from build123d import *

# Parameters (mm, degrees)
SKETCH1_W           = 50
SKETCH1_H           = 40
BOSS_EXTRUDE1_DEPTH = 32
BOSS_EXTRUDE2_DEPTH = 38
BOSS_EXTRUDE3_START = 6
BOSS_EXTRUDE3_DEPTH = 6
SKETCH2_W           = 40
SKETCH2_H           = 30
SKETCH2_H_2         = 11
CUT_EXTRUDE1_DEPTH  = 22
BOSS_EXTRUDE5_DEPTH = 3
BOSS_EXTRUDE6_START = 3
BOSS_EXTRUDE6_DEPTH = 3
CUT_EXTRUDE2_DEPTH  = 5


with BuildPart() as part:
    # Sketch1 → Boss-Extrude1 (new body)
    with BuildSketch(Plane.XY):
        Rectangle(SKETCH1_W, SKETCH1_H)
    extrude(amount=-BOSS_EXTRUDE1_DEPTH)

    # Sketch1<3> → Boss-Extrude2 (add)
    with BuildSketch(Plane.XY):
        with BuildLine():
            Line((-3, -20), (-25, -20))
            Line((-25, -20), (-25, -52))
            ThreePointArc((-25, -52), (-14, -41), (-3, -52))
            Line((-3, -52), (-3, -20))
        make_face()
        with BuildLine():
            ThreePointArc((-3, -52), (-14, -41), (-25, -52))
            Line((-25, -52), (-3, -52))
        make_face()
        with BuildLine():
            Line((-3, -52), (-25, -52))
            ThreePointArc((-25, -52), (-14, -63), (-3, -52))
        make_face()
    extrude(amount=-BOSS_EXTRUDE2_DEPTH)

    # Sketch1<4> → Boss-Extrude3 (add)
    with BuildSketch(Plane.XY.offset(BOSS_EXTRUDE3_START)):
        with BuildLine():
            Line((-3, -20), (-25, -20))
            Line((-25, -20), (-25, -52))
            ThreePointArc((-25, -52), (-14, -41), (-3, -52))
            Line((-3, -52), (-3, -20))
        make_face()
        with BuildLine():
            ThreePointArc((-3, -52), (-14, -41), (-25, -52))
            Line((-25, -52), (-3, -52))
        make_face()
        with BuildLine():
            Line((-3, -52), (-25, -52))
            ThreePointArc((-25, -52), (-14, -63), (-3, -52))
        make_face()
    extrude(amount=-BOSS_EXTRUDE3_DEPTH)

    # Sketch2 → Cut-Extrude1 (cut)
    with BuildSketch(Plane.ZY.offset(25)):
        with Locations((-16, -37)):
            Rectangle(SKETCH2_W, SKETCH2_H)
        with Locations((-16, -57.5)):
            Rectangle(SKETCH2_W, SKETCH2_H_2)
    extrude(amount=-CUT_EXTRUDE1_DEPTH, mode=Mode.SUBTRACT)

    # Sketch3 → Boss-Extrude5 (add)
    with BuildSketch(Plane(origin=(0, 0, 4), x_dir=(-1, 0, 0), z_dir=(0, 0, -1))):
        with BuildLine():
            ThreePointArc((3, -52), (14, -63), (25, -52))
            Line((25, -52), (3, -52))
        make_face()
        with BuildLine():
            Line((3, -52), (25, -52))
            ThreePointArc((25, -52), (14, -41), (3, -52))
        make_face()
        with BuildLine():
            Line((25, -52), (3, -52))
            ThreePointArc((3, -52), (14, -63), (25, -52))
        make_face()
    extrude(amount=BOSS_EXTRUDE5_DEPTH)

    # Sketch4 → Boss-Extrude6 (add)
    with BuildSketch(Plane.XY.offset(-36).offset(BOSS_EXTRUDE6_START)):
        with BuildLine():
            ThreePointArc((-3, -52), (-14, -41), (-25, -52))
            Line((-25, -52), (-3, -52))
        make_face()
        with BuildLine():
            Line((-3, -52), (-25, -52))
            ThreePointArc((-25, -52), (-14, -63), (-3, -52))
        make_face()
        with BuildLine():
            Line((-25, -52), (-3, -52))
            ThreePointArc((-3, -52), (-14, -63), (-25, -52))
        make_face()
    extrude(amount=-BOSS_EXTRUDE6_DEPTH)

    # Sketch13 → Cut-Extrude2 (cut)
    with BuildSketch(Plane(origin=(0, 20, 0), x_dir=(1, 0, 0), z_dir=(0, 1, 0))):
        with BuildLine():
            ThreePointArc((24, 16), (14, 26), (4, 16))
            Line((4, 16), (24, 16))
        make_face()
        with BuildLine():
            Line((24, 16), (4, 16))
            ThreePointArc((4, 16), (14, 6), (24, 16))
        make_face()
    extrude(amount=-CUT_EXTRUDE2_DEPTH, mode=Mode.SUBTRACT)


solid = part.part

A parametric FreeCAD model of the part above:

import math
import FreeCAD as App
import Part
import Sketcher

V = App.Vector

doc = App.newDocument("Part")
body = doc.addObject("PartDesign::Body", "Body")

# Sketch on XY plane
sketch1 = doc.addObject("Sketcher::SketchObject", "Sketch")
body.addObject(sketch1)
sketch1.AttachmentSupport = (doc.XY_Plane, [""])
sketch1.MapMode = "FlatFace"
sketch1.addGeometry(Part.LineSegment(V(-25, 20, 0), V(-25, -20, 0)), False)
sketch1.addGeometry(Part.LineSegment(V(-25, -20, 0), V(25, -20, 0)), False)
sketch1.addGeometry(Part.LineSegment(V(25, -20, 0), V(25, 20, 0)), False)
sketch1.addGeometry(Part.LineSegment(V(25, 20, 0), V(-25, 20, 0)), False)
sketch1.addConstraint(Sketcher.Constraint("Coincident", 0, 2, 1, 1))
sketch1.addConstraint(Sketcher.Constraint("Coincident", 1, 2, 2, 1))
sketch1.addConstraint(Sketcher.Constraint("Coincident", 2, 2, 3, 1))
sketch1.addConstraint(Sketcher.Constraint("Coincident", 3, 2, 0, 1))
sketch1.addConstraint(Sketcher.Constraint("Vertical", 0))
sketch1.addConstraint(Sketcher.Constraint("Horizontal", 1))
sketch1.addConstraint(Sketcher.Constraint("Vertical", 2))
sketch1.addConstraint(Sketcher.Constraint("Horizontal", 3))
sketch1.addConstraint(Sketcher.Constraint("Symmetric", 0, 2, 2, 2, -1, 1))
sketch1.addConstraint(Sketcher.Constraint("DistanceX", 1, 1, 1, 2, 50.0))
sketch1.addConstraint(Sketcher.Constraint("DistanceY", 0, 2, 0, 1, 40.0))
pad1 = doc.addObject("PartDesign::Pad", "Pad")
body.addObject(pad1)
pad1.Profile = sketch1
pad1.Length = 32
pad1.Reversed = True

# Sketch on XY plane
sketch2 = doc.addObject("Sketcher::SketchObject", "Sketch001")
body.addObject(sketch2)
sketch2.AttachmentSupport = (doc.XY_Plane, [""])
sketch2.MapMode = "FlatFace"
sketch2.addGeometry(Part.LineSegment(V(-25, -20, 0), V(-25, -52, 0)), False)
sketch2.addGeometry(Part.ArcOfCircle(Part.Circle(V(-14, -52, 0), V(0, 0, 1), 11), math.radians(180), math.radians(360)), False)
sketch2.addGeometry(Part.LineSegment(V(-3, -52, 0), V(-3, -20, 0)), False)
sketch2.addGeometry(Part.LineSegment(V(-3, -20, 0), V(-25, -20, 0)), False)
sketch2.addConstraint(Sketcher.Constraint("Tangent", 0, 2, 1, 1))
sketch2.addConstraint(Sketcher.Constraint("Tangent", 1, 2, 2, 1))
sketch2.addConstraint(Sketcher.Constraint("Coincident", 2, 2, 3, 1))
sketch2.addConstraint(Sketcher.Constraint("Coincident", 3, 2, 0, 1))
sketch2.addConstraint(Sketcher.Constraint("Vertical", 0))
sketch2.addConstraint(Sketcher.Constraint("Vertical", 2))
sketch2.addConstraint(Sketcher.Constraint("Horizontal", 3))
sketch2.addConstraint(Sketcher.Constraint("Radius", 1, 11.0))
sketch2.addConstraint(Sketcher.Constraint("DistanceY", 0, 2, 0, 1, 32.0))
sketch2.addConstraint(Sketcher.Constraint("DistanceX", 1, 3, -1, 1, 14.0))
sketch2.addConstraint(Sketcher.Constraint("DistanceY", 1, 3, -1, 1, 52.0))
pad2 = doc.addObject("PartDesign::Pad", "Pad001")
body.addObject(pad2)
pad2.Profile = sketch2
pad2.Length = 38
pad2.Reversed = True

# Sketch on XY plane
sketch3 = doc.addObject("Sketcher::SketchObject", "Sketch002")
body.addObject(sketch3)
sketch3.AttachmentSupport = (doc.XY_Plane, [""])
sketch3.MapMode = "FlatFace"
sketch3.AttachmentOffset = App.Placement(V(0, 0, 6), App.Rotation())
sketch3.addGeometry(Part.LineSegment(V(-25, -20, 0), V(-25, -52, 0)), False)
sketch3.addGeometry(Part.ArcOfCircle(Part.Circle(V(-14, -52, 0), V(0, 0, 1), 11), math.radians(180), math.radians(360)), False)
sketch3.addGeometry(Part.LineSegment(V(-3, -52, 0), V(-3, -20, 0)), False)
sketch3.addGeometry(Part.LineSegment(V(-3, -20, 0), V(-25, -20, 0)), False)
sketch3.addConstraint(Sketcher.Constraint("Tangent", 0, 2, 1, 1))
sketch3.addConstraint(Sketcher.Constraint("Tangent", 1, 2, 2, 1))
sketch3.addConstraint(Sketcher.Constraint("Coincident", 2, 2, 3, 1))
sketch3.addConstraint(Sketcher.Constraint("Coincident", 3, 2, 0, 1))
sketch3.addConstraint(Sketcher.Constraint("Vertical", 0))
sketch3.addConstraint(Sketcher.Constraint("Vertical", 2))
sketch3.addConstraint(Sketcher.Constraint("Horizontal", 3))
sketch3.addConstraint(Sketcher.Constraint("Radius", 1, 11.0))
sketch3.addConstraint(Sketcher.Constraint("DistanceY", 0, 2, 0, 1, 32.0))
sketch3.addConstraint(Sketcher.Constraint("DistanceX", 1, 3, -1, 1, 14.0))
sketch3.addConstraint(Sketcher.Constraint("DistanceY", 1, 3, -1, 1, 52.0))
pad3 = doc.addObject("PartDesign::Pad", "Pad002")
body.addObject(pad3)
pad3.Profile = sketch3
pad3.Length = 6
pad3.Reversed = True

# Sketch on YZ plane
sketch4 = doc.addObject("Sketcher::SketchObject", "Sketch003")
body.addObject(sketch4)
sketch4.AttachmentSupport = (doc.YZ_Plane, [""])
sketch4.MapMode = "FlatFace"
sketch4.AttachmentOffset = App.Placement(V(0, 0, -25), App.Rotation())
sketch4.addGeometry(Part.LineSegment(V(-22, -36, 0), V(-63, -36, 0)), False)
sketch4.addGeometry(Part.LineSegment(V(-63, -36, 0), V(-63, 4, 0)), False)
sketch4.addGeometry(Part.LineSegment(V(-63, 4, 0), V(-22, 4, 0)), False)
sketch4.addGeometry(Part.LineSegment(V(-22, 4, 0), V(-22, -36, 0)), False)
sketch4.addConstraint(Sketcher.Constraint("Coincident", 0, 2, 1, 1))
sketch4.addConstraint(Sketcher.Constraint("Coincident", 1, 2, 2, 1))
sketch4.addConstraint(Sketcher.Constraint("Coincident", 2, 2, 3, 1))
sketch4.addConstraint(Sketcher.Constraint("Coincident", 3, 2, 0, 1))
sketch4.addConstraint(Sketcher.Constraint("Horizontal", 0))
sketch4.addConstraint(Sketcher.Constraint("Vertical", 1))
sketch4.addConstraint(Sketcher.Constraint("Horizontal", 2))
sketch4.addConstraint(Sketcher.Constraint("Vertical", 3))
sketch4.addConstraint(Sketcher.Constraint("DistanceX", 0, 2, 0, 1, 41.0))
sketch4.addConstraint(Sketcher.Constraint("DistanceY", 1, 1, 1, 2, 40.0))
sketch4.addConstraint(Sketcher.Constraint("DistanceX", 0, 2, -1, 1, 63.0))
sketch4.addConstraint(Sketcher.Constraint("DistanceY", 0, 2, -1, 1, 36.0))
pocket1 = doc.addObject("PartDesign::Pocket", "Pocket")
body.addObject(pocket1)
pocket1.Profile = sketch4
pocket1.Length = 22
pocket1.Reversed = True

# Sketch on XY plane
sketch5 = doc.addObject("Sketcher::SketchObject", "Sketch004")
body.addObject(sketch5)
sketch5.AttachmentSupport = (doc.XY_Plane, [""])
sketch5.MapMode = "FlatFace"
sketch5.AttachmentOffset = App.Placement(V(0, 0, 4), App.Rotation())
sketch5.addGeometry(Part.Circle(V(-14, -52, 0), V(0, 0, 1), 11), False)
sketch5.addConstraint(Sketcher.Constraint("Diameter", 0, 22.0))
sketch5.addConstraint(Sketcher.Constraint("DistanceX", 0, 3, -1, 1, 14.0))
sketch5.addConstraint(Sketcher.Constraint("DistanceY", 0, 3, -1, 1, 52.0))
pad4 = doc.addObject("PartDesign::Pad", "Pad003")
body.addObject(pad4)
pad4.Profile = sketch5
pad4.Length = 3
pad4.Reversed = True

# Sketch on XY plane
sketch6 = doc.addObject("Sketcher::SketchObject", "Sketch005")
body.addObject(sketch6)
sketch6.AttachmentSupport = (doc.XY_Plane, [""])
sketch6.MapMode = "FlatFace"
sketch6.AttachmentOffset = App.Placement(V(0, 0, -33), App.Rotation())
sketch6.addGeometry(Part.Circle(V(-14, -52, 0), V(0, 0, 1), 11), False)
sketch6.addConstraint(Sketcher.Constraint("Diameter", 0, 22.0))
sketch6.addConstraint(Sketcher.Constraint("DistanceX", 0, 3, -1, 1, 14.0))
sketch6.addConstraint(Sketcher.Constraint("DistanceY", 0, 3, -1, 1, 52.0))
pad5 = doc.addObject("PartDesign::Pad", "Pad004")
body.addObject(pad5)
pad5.Profile = sketch6
pad5.Length = 3
pad5.Reversed = True

# Sketch on XZ plane
sketch7 = doc.addObject("Sketcher::SketchObject", "Sketch006")
body.addObject(sketch7)
sketch7.AttachmentSupport = (doc.XZ_Plane, [""])
sketch7.MapMode = "FlatFace"
sketch7.AttachmentOffset = App.Placement(V(0, 0, -20), App.Rotation())
sketch7.addGeometry(Part.Circle(V(14, -16, 0), V(0, 0, 1), 10), False)
sketch7.addConstraint(Sketcher.Constraint("Diameter", 0, 20.0))
sketch7.addConstraint(Sketcher.Constraint("DistanceX", -1, 1, 0, 3, 14.0))
sketch7.addConstraint(Sketcher.Constraint("DistanceY", 0, 3, -1, 1, 16.0))
pocket2 = doc.addObject("PartDesign::Pocket", "Pocket001")
body.addObject(pocket2)
pocket2.Profile = sketch7
pocket2.Length = 5
pocket2.Reversed = True

doc.recompute()
